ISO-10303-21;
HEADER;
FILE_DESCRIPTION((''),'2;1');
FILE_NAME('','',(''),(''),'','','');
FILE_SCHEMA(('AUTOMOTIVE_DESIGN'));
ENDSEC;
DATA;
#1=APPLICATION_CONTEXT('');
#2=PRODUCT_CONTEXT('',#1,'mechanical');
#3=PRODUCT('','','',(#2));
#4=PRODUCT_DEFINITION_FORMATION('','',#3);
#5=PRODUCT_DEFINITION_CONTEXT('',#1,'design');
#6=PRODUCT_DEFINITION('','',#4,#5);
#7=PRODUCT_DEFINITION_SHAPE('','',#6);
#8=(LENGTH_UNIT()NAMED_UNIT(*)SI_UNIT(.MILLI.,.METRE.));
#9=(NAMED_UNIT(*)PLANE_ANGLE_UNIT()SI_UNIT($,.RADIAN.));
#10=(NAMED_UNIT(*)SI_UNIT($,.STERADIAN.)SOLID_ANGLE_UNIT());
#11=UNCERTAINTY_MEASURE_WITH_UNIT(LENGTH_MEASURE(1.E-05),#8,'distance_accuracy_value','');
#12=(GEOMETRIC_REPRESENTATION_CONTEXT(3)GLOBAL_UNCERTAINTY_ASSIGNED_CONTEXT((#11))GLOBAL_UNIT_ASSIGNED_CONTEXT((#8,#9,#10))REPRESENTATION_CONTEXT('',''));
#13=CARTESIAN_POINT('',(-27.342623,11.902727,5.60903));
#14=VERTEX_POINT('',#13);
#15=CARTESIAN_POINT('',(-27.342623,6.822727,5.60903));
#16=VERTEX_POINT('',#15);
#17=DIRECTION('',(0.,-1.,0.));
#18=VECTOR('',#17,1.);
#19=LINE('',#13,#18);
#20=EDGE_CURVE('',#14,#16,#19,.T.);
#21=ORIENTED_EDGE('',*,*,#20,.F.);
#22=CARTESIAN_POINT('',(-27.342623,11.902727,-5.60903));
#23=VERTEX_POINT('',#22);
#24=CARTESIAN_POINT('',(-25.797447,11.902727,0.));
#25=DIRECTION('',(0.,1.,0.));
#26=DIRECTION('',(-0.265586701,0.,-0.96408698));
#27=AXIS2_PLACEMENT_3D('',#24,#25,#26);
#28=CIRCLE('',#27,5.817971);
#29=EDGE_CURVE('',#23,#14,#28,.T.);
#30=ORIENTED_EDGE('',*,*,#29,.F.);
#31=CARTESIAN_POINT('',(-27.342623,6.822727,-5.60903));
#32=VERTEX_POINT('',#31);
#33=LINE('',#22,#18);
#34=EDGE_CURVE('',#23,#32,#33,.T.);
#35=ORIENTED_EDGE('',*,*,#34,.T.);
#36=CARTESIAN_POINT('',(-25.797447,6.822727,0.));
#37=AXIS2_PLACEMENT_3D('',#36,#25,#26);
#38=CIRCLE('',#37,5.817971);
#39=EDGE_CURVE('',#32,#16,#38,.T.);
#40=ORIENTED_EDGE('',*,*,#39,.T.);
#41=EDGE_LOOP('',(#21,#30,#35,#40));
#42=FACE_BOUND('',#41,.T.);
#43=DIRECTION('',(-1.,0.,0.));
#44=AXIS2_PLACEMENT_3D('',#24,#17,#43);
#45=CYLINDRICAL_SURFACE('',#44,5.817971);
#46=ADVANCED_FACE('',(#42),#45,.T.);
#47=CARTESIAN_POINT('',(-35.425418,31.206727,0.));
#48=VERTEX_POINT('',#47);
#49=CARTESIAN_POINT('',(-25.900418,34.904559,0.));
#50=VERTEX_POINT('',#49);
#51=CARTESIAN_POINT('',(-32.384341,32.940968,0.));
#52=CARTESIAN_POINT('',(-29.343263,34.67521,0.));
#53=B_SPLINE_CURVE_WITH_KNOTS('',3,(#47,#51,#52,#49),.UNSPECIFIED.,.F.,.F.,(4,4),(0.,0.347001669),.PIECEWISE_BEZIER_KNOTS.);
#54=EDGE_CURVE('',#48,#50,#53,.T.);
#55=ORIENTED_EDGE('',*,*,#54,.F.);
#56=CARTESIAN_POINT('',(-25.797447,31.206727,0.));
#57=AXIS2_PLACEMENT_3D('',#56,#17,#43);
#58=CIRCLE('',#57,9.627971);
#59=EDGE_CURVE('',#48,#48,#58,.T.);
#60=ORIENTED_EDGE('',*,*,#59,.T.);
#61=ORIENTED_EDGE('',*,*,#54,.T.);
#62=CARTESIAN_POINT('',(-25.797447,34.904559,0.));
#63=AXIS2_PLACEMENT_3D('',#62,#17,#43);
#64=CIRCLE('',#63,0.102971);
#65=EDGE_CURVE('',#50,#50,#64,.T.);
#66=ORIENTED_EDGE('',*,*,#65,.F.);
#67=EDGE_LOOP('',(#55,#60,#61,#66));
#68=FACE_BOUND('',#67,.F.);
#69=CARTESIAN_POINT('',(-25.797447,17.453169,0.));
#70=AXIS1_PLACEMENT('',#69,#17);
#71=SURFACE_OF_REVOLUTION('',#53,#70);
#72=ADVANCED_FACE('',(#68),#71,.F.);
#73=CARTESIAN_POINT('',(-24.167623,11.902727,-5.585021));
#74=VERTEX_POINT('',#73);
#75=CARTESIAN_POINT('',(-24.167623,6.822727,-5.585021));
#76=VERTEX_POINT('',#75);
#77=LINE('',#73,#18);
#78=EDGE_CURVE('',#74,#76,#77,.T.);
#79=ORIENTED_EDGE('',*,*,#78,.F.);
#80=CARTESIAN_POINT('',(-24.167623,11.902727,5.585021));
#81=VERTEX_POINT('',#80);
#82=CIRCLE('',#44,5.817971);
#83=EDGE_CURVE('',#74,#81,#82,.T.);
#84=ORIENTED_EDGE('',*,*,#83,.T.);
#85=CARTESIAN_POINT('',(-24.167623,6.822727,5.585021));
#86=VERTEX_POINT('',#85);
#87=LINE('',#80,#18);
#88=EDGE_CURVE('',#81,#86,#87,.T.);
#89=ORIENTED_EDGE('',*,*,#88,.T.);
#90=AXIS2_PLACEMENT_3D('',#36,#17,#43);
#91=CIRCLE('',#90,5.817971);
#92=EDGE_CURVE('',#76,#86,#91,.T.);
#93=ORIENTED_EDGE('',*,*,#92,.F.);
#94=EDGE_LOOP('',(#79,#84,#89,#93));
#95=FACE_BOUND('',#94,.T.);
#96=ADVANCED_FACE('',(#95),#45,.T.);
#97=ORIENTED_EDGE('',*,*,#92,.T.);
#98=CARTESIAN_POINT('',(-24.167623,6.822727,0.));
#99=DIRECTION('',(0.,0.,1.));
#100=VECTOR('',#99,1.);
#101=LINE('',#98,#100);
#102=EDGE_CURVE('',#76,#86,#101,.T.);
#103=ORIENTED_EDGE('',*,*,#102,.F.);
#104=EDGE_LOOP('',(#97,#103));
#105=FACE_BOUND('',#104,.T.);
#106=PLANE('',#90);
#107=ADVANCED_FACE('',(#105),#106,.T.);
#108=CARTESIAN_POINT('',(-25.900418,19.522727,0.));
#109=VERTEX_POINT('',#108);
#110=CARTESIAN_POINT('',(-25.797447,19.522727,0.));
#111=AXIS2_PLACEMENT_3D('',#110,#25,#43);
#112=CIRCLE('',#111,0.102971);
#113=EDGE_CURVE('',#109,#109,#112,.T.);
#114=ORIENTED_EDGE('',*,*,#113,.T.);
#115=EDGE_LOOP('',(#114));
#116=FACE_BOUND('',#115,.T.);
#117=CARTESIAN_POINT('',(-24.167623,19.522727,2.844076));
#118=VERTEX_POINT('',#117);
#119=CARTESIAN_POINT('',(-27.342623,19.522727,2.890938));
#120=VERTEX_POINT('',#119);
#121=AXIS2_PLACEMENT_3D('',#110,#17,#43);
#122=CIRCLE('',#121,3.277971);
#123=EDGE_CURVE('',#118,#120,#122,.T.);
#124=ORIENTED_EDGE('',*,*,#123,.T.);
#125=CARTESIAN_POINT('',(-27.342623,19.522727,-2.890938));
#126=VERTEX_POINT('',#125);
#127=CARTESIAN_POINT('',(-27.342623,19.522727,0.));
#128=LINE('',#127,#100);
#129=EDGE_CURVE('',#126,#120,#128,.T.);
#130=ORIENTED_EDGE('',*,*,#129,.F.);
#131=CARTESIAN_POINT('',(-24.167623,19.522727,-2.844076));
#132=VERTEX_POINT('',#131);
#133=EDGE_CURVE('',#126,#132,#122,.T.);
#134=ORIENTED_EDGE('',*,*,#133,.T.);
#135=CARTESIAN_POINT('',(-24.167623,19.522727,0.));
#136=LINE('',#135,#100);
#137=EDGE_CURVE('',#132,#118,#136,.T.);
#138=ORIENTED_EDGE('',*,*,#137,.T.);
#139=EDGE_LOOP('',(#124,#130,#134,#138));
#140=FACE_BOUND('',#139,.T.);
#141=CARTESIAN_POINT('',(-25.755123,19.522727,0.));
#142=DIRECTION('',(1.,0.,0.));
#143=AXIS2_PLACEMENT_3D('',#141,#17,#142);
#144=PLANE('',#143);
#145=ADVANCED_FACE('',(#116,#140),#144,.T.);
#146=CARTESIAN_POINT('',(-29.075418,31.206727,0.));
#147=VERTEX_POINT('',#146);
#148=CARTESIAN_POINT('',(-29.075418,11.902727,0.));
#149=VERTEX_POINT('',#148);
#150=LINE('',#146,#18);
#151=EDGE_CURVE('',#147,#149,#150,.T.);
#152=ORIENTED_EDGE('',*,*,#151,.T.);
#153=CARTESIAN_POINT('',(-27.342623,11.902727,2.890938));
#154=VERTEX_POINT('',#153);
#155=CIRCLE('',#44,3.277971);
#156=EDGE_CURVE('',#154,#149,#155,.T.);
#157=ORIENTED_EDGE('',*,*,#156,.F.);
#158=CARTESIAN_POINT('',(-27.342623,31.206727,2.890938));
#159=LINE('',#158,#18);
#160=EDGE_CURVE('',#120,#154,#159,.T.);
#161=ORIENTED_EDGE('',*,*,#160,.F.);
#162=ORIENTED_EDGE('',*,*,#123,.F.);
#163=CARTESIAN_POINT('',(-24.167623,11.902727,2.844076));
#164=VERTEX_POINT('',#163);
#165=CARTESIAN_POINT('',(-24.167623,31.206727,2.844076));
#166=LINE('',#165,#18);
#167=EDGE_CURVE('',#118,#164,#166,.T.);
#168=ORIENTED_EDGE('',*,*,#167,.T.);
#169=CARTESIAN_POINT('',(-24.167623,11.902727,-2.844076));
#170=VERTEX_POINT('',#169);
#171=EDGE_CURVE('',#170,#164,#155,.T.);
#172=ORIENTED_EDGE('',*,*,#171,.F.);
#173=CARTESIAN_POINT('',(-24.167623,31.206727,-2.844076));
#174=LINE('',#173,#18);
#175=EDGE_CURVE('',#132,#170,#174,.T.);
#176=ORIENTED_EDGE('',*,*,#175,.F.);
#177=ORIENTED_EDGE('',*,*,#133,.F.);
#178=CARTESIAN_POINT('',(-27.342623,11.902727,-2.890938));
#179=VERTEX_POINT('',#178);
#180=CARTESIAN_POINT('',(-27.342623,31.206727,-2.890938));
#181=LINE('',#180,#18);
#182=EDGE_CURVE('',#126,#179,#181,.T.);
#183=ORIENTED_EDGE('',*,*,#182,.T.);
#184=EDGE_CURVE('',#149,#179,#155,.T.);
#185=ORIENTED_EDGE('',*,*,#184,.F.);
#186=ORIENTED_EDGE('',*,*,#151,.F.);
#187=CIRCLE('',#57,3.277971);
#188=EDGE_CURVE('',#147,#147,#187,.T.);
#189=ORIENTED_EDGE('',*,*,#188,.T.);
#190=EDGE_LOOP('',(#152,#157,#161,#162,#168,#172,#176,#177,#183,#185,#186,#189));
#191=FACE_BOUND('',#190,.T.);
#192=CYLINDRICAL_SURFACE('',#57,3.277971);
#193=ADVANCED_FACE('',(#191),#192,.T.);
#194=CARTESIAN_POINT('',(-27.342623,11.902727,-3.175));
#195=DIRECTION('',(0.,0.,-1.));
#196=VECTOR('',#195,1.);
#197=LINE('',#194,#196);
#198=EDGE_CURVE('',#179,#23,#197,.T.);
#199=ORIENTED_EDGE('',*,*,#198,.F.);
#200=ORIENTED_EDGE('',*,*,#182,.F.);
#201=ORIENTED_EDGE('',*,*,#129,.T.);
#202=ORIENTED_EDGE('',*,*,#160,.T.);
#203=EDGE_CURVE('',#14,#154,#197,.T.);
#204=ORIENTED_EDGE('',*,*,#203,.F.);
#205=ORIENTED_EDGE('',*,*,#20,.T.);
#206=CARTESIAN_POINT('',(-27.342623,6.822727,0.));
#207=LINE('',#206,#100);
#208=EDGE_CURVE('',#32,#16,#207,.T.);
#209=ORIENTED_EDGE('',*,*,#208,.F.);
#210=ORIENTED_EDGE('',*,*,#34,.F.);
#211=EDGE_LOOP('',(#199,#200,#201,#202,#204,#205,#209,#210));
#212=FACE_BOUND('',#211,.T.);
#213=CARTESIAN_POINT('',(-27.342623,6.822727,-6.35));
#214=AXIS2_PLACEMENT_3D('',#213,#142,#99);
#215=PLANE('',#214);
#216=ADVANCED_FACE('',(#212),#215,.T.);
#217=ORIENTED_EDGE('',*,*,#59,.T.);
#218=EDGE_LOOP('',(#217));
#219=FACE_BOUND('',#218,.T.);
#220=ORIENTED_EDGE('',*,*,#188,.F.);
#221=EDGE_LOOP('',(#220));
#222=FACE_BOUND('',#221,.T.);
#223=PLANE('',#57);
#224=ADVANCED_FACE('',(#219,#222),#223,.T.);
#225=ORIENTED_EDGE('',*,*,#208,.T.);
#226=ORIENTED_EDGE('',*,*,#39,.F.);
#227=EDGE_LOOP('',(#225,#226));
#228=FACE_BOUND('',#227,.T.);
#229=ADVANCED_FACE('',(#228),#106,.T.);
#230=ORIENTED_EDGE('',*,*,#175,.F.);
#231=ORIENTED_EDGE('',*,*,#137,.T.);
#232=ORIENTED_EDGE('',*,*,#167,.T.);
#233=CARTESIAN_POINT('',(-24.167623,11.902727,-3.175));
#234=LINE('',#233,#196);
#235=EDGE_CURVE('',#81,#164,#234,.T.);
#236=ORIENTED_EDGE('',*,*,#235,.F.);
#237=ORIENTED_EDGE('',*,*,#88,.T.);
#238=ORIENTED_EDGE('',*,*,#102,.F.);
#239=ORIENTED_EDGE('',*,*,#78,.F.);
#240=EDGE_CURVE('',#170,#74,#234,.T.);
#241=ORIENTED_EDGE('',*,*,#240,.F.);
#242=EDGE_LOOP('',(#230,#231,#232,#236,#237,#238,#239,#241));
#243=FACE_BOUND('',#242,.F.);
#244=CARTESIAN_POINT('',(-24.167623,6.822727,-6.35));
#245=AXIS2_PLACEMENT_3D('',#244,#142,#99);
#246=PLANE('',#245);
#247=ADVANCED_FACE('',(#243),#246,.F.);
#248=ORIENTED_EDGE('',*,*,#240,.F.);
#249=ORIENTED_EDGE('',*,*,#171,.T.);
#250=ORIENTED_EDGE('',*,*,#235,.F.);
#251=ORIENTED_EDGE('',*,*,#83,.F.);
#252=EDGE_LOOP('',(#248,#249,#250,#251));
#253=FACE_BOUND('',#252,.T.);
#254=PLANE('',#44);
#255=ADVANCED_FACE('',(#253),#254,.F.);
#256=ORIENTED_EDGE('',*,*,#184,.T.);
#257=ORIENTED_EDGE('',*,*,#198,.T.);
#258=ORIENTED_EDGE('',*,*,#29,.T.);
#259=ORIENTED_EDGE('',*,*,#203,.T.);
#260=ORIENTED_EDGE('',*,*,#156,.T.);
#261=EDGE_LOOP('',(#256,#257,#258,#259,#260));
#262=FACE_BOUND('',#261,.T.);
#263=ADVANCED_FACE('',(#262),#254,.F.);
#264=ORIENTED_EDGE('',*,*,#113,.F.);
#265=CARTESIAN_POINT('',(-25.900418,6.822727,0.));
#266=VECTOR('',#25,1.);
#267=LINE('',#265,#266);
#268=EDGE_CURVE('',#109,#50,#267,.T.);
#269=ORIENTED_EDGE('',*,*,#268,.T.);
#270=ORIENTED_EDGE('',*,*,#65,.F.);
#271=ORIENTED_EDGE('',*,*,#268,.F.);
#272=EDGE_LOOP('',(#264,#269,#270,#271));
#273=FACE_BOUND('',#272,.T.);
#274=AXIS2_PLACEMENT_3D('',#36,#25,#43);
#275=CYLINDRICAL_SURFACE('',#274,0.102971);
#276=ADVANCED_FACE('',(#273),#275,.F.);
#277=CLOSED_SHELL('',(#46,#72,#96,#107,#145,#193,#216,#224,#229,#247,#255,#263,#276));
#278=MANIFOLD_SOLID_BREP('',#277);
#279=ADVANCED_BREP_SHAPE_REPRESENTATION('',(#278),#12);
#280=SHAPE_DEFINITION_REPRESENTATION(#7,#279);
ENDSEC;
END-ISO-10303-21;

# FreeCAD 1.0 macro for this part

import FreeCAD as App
import Part
import Sketcher
Q = App.Units.Quantity

doc = App.newDocument("Part")
body = doc.addObject("PartDesign::Body", "Body")

sketch1 = body.newObject("Sketcher::SketchObject", "Sketch")
sketch1.AttachmentSupport = (doc.getObject("XY_Plane"), [""])
sketch1.MapMode = "FlatFace"
sketch1.addGeometry([
    Part.LineSegment(App.Vector(-35.425418, 31.206727, 0), App.Vector(-29.075418, 31.206727, 0)),
    Part.LineSegment(App.Vector(-29.075418, 31.206727, 0), App.Vector(-29.075418, 11.902727, 0)),
    Part.LineSegment(App.Vector(-29.075418, 11.902727, 0), App.Vector(-31.615418, 11.902727, 0)),
    Part.LineSegment(App.Vector(-31.615418, 11.902727, 0), App.Vector(-31.615418, 6.822727, 0)),
    Part.LineSegment(App.Vector(-31.615418, 6.822727, 0), App.Vector(-25.900418, 6.822727, 0)),
    Part.LineSegment(App.Vector(-25.900418, 6.822727, 0), App.Vector(-25.900418, 34.904559, 0)),
    Part.BSplineCurve([App.Vector(-35.425418, 31.206727, 0), App.Vector(-32.384341, 32.940968, 0), App.Vector(-29.343263, 34.67521, 0), App.Vector(-25.900418, 34.904559, 0)], [4, 4], [0, 0.347001669], False, 3, [1, 1, 1, 1], False),
], False)
sketch1.addGeometry(Part.LineSegment(App.Vector(-25.797447, 34.904559, 0), App.Vector(-25.797447, 6.822727, 0)), True)
sketch1.addConstraint([
    Sketcher.Constraint("Block", 6),
    Sketcher.Constraint("Coincident", 0, 2, 1, 1),
    Sketcher.Constraint("Coincident", 1, 2, 2, 1),
    Sketcher.Constraint("Coincident", 2, 2, 3, 1),
    Sketcher.Constraint("Coincident", 3, 2, 4, 1),
    Sketcher.Constraint("Coincident", 4, 2, 5, 1),
    Sketcher.Constraint("Coincident", 5, 2, 6, 2),
    Sketcher.Constraint("Coincident", 6, 1, 0, 1),
    Sketcher.Constraint("Horizontal", 0),
    Sketcher.Constraint("Vertical", 1),
    Sketcher.Constraint("Horizontal", 2),
    Sketcher.Constraint("Vertical", 3),
    Sketcher.Constraint("Horizontal", 4),
    Sketcher.Constraint("Vertical", 5),
    Sketcher.Constraint("Vertical", 7),
    Sketcher.Constraint("Horizontal", 5, 2, 7, 1),
    Sketcher.Constraint("Horizontal", 4, 2, 7, 2),
    Sketcher.Constraint("DistanceX", 2, 2, 2, 1, Q("0.1 in")),
    Sketcher.Constraint("DistanceY", 3, 2, 3, 1, Q("0.2 in")),
    Sketcher.Constraint("DistanceX", 0, 1, 0, 2, Q("0.25 in")),
    Sketcher.Constraint("DistanceY", 1, 2, 1, 1, Q("0.76 in")),
    Sketcher.Constraint("DistanceX", 5, 2, 7, 1, 0.102971),
])
revolution = body.newObject("PartDesign::Revolution", "Revolution")
revolution.Profile = sketch1
revolution.ReferenceAxis = (sketch1, ["Axis0"])
revolution.Angle = 360

sketch2 = body.newObject("Sketcher::SketchObject", "Sketch001")
sketch2.AttachmentSupport = (doc.getObject("XZ_Plane"), [""])
sketch2.MapMode = "FlatFace"
sketch2.AttachmentOffset = App.Placement(App.Vector(0, 0, -6.822727), App.Rotation())
sketch2.addGeometry([
    Part.LineSegment(App.Vector(-27.342623, 6.35, 0), App.Vector(-27.342623, -6.35, 0)),
    Part.LineSegment(App.Vector(-27.342623, -6.35, 0), App.Vector(-24.167623, -6.35, 0)),
    Part.LineSegment(App.Vector(-24.167623, -6.35, 0), App.Vector(-24.167623, 6.35, 0)),
    Part.LineSegment(App.Vector(-24.167623, 6.35, 0), App.Vector(-27.342623, 6.35, 0)),
], False)
sketch2.addConstraint([
    Sketcher.Constraint("Coincident", 0, 2, 1, 1),
    Sketcher.Constraint("Coincident", 1, 2, 2, 1),
    Sketcher.Constraint("Coincident", 2, 2, 3, 1),
    Sketcher.Constraint("Coincident", 3, 2, 0, 1),
    Sketcher.Constraint("Vertical", 0),
    Sketcher.Constraint("Horizontal", 1),
    Sketcher.Constraint("Vertical", 2),
    Sketcher.Constraint("Horizontal", 3),
    Sketcher.Constraint("DistanceY", 0, 2, 0, 1, Q("0.5 in")),
    Sketcher.Constraint("DistanceX", 1, 1, 1, 2, Q("0.125 in")),
    Sketcher.Constraint("DistanceY", 0, 2, -1, 1, Q("0.25 in")),
    Sketcher.Constraint("DistanceX", 0, 2, -1, 1, 27.342623),
])
pocket1 = body.newObject("PartDesign::Pocket", "Pocket")
pocket1.Profile = sketch2
pocket1.Length = Q("0.5 in")

doc.recompute()
